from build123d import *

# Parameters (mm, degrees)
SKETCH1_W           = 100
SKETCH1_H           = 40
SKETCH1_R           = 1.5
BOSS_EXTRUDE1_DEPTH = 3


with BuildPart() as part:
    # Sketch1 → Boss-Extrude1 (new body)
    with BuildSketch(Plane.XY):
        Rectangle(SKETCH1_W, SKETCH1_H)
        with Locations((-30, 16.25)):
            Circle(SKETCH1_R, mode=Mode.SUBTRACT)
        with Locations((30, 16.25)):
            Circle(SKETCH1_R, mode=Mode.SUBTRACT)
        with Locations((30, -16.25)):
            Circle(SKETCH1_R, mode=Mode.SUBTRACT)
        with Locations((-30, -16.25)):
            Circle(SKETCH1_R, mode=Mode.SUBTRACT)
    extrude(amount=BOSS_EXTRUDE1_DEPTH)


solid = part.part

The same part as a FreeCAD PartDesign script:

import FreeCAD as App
import Part
import Sketcher


def add_polygon(sketch, points):
    """Adds a closed chain of lines whose ends are joined by coincident constraints."""
    first, n = sketch.GeometryCount, len(points)
    for a, b in zip(points, points[1:] + points[:1]):
        sketch.addGeometry(Part.LineSegment(App.Vector(*a, 0), App.Vector(*b, 0)), False)
    for i in range(n):
        sketch.addConstraint(Sketcher.Constraint("Coincident", first + i, 2, first + (i + 1) % n, 1))

doc = App.newDocument("Part")
body = doc.addObject("PartDesign::Body", "Body")

# Sketch on XY plane
sketch1 = body.newObject("Sketcher::SketchObject", "Sketch")
sketch1.AttachmentSupport = (doc.getObject("XY_Plane"), [""])
sketch1.MapMode = "FlatFace"
add_polygon(sketch1, [(-50, 20), (-50, -20), (50, -20), (50, 20)])  # lines 0-3
sketch1.addGeometry(Part.Circle(App.Vector(-30, -16.2, 0), App.Vector(0, 0, 1), 1.5), False)  # 4
sketch1.addGeometry(Part.Circle(App.Vector(30, -16.2, 0), App.Vector(0, 0, 1), 1.5), False)  # 5
sketch1.addGeometry(Part.Circle(App.Vector(-30, 16.2, 0), App.Vector(0, 0, 1), 1.5), False)  # 6
sketch1.addGeometry(Part.Circle(App.Vector(30, 16.2, 0), App.Vector(0, 0, 1), 1.5), False)  # 7
sketch1.addConstraint([
    Sketcher.Constraint("Vertical", 0),
    Sketcher.Constraint("Horizontal", 1),
    Sketcher.Constraint("Vertical", 2),
    Sketcher.Constraint("Horizontal", 3),
    Sketcher.Constraint("Equal", 4, 5),
    Sketcher.Constraint("Equal", 5, 6),
    Sketcher.Constraint("Equal", 6, 7),
    Sketcher.Constraint("Symmetric", 5, 3, 6, 3, -1, 1),
    Sketcher.Constraint("Symmetric", 4, 3, 7, 3, -1, 1),
    Sketcher.Constraint("Symmetric", 0, 2, 2, 2, -1, 1),
    Sketcher.Constraint("Symmetric", 4, 3, 5, 3, -2),
    Sketcher.Constraint("Diameter", 4, 3.0),
    Sketcher.Constraint("DistanceX", 1, 1, 1, 2, 100.0),
    Sketcher.Constraint("DistanceY", 0, 2, 0, 1, 40.0),
    Sketcher.Constraint("DistanceX", 4, 3, -1, 1, 30.0),
    Sketcher.Constraint("DistanceY", 4, 3, 6, 3, 32.5),
])
pad1 = body.newObject("PartDesign::Pad", "Pad")
pad1.Profile = sketch1
pad1.Length = 3

doc.recompute()
